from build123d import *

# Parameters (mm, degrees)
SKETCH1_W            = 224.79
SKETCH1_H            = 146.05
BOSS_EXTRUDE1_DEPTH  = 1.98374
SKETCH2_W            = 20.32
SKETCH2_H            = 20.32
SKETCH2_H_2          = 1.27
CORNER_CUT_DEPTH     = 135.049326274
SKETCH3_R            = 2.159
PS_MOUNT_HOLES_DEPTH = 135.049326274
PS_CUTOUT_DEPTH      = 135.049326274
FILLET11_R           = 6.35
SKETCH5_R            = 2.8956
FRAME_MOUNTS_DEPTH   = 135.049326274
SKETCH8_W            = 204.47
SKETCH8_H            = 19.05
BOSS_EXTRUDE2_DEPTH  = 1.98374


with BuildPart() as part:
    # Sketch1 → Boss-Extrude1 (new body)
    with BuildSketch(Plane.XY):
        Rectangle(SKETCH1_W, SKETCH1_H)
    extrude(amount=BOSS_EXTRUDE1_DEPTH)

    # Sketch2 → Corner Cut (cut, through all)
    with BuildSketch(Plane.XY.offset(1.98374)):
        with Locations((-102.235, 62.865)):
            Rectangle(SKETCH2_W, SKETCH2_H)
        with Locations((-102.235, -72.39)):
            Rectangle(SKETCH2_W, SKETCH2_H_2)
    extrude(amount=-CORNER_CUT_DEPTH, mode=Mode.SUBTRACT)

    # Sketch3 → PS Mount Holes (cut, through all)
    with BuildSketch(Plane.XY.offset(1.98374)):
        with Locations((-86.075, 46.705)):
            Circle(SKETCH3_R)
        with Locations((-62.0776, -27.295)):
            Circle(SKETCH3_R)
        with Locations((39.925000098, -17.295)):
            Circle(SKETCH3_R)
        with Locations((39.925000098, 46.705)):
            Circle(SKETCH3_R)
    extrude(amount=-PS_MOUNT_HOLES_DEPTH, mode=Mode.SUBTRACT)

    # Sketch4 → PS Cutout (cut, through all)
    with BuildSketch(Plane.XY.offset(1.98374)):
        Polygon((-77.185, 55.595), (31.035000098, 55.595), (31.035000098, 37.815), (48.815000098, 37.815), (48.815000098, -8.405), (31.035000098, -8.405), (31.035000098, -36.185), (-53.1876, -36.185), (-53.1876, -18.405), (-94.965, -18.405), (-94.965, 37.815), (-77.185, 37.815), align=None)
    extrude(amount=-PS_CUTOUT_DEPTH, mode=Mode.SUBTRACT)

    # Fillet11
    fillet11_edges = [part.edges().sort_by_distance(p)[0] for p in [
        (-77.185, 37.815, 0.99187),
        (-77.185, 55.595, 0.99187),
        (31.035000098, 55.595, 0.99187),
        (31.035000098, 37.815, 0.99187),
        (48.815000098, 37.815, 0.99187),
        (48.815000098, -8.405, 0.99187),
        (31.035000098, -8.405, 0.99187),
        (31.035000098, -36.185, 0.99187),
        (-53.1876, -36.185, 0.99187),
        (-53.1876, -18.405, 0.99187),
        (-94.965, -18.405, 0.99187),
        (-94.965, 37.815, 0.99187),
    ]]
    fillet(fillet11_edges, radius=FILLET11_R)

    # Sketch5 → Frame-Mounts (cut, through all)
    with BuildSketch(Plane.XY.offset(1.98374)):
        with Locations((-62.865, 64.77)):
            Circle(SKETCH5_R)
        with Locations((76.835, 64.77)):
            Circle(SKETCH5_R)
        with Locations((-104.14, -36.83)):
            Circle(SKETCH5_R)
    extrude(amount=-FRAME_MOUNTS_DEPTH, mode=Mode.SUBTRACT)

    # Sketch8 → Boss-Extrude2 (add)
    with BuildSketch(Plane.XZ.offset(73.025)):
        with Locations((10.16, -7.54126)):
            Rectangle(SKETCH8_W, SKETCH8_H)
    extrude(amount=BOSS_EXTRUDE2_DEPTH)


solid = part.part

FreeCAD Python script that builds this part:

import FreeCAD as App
import Part
import Sketcher

V = App.Vector
Q = App.Units.Quantity


def edges_at(feature, points):
    """Names of the edges that pass closest to the given points."""
    edges = feature.Shape.Edges
    near = lambda p: min(range(len(edges)), key=lambda i: edges[i].distToShape(Part.Vertex(*p))[0])
    return sorted({f"Edge{near(p) + 1}" for p in points})

doc = App.newDocument("Part")
params = doc.addObject("Spreadsheet::Sheet", "Params")
for row, (alias, value) in enumerate([
    ("sketch1_width", "8.85 in"),
    ("sketch1_height", "5.75 in"),
    ("pad1_length", "0.0781 in"),
    ("sketch2_width", "0.8 in"),
    ("sketch2_height", "0.05 in"),
    ("sketch3_diameter", "0.17 in"),
    ("sketch4_width", "0.7 in"),
    ("fillet_radius", "0.25 in"),
    ("sketch5_diameter", "0.228 in"),
    ("sketch6_width", "8.05 in"),
    ("sketch6_height", "0.75 in"),
    ("pad2_length", "0.0781 in"),
], start=1):
    params.set(f"A{row}", alias)
    params.set(f"B{row}", "=" + value)
    params.setAlias(f"B{row}", alias)

body = doc.addObject("PartDesign::Body", "Body")

sketch1 = body.newObject("Sketcher::SketchObject", "Sketch")
sketch1.AttachmentSupport = (doc.getObject("XY_Plane"), [""])
sketch1.MapMode = "FlatFace"
sketch1.addGeometry([
    Part.LineSegment(V(-112, 73, 0), V(-112, -73, 0)),
    Part.LineSegment(V(-112, -73, 0), V(112, -73, 0)),
    Part.LineSegment(V(112, -73, 0), V(112, 73, 0)),
    Part.LineSegment(V(112, 73, 0), V(-112, 73, 0)),
], False)
sketch1.addConstraint([
    Sketcher.Constraint("Coincident", 0, 2, 1, 1),
    Sketcher.Constraint("Coincident", 1, 2, 2, 1),
    Sketcher.Constraint("Coincident", 2, 2, 3, 1),
    Sketcher.Constraint("Coincident", 3, 2, 0, 1),
    Sketcher.Constraint("Vertical", 0),
    Sketcher.Constraint("Horizontal", 1),
    Sketcher.Constraint("Vertical", 2),
    Sketcher.Constraint("Horizontal", 3),
    Sketcher.Constraint("Symmetric", 0, 2, 2, 2, -1, 1),
    Sketcher.Constraint("DistanceX", 1, 1, 1, 2, Q("8.85 in")),
    Sketcher.Constraint("DistanceY", 0, 2, 0, 1, Q("5.75 in")),
])
sketch1.setExpression("Constraints[9]", "Params.sketch1_width")
sketch1.setExpression("Constraints[10]", "Params.sketch1_height")
pad1 = body.newObject("PartDesign::Pad", "Pad")
pad1.Profile = sketch1
pad1.setExpression("Length", "Params.pad1_length")

sketch2 = body.newObject("Sketcher::SketchObject", "Sketch001")
sketch2.AttachmentSupport = (doc.getObject("XY_Plane"), [""])
sketch2.MapMode = "FlatFace"
sketch2.AttachmentOffset = App.Placement(V(0, 0, 0.0781 * 25.4), App.Rotation())
sketch2.addGeometry([
    Part.LineSegment(V(-112.4, 73, 0), V(-112.4, 52.7, 0)),
    Part.LineSegment(V(-112.4, 52.7, 0), V(-92.1, 52.7, 0)),
    Part.LineSegment(V(-92.1, 52.7, 0), V(-92.1, 73, 0)),
    Part.LineSegment(V(-92.1, 73, 0), V(-112.4, 73, 0)),
    Part.LineSegment(V(-112.4, -71.8, 0), V(-112.4, -73, 0)),
    Part.LineSegment(V(-112.4, -73, 0), V(-92.1, -73, 0)),
    Part.LineSegment(V(-92.1, -73, 0), V(-92.1, -71.8, 0)),
    Part.LineSegment(V(-92.1, -71.8, 0), V(-112.4, -71.8, 0)),
], False)
sketch2.addConstraint([
    Sketcher.Constraint("Coincident", 0, 2, 1, 1),
    Sketcher.Constraint("Coincident", 1, 2, 2, 1),
    Sketcher.Constraint("Coincident", 2, 2, 3, 1),
    Sketcher.Constraint("Coincident", 3, 2, 0, 1),
    Sketcher.Constraint("Coincident", 4, 2, 5, 1),
    Sketcher.Constraint("Coincident", 5, 2, 6, 1),
    Sketcher.Constraint("Coincident", 6, 2, 7, 1),
    Sketcher.Constraint("Coincident", 7, 2, 4, 1),
    Sketcher.Constraint("Vertical", 0),
    Sketcher.Constraint("Horizontal", 1),
    Sketcher.Constraint("Vertical", 2),
    Sketcher.Constraint("Horizontal", 3),
    Sketcher.Constraint("Vertical", 4),
    Sketcher.Constraint("Horizontal", 5),
    Sketcher.Constraint("Vertical", 6),
    Sketcher.Constraint("Horizontal", 7),
    Sketcher.Constraint("Symmetric", 3, 2, 4, 2, -1),
    Sketcher.Constraint("Vertical", 2, 2, 5, 2),
    Sketcher.Constraint("Equal", 7, 0),
    Sketcher.Constraint("DistanceX", 1, 1, 1, 2, Q("0.8 in")),
    Sketcher.Constraint("DistanceY", 4, 2, 4, 1, Q("0.05 in")),
    Sketcher.Constraint("DistanceY", 6, 2, 1, 2, Q("4.9 in")),
    Sketcher.Constraint("DistanceX", 0, 2, -1, 1, Q("4.425 in")),
])
sketch2.setExpression("Constraints[19]", "Params.sketch2_width")
sketch2.setExpression("Constraints[20]", "Params.sketch2_height")
pocket1 = body.newObject("PartDesign::Pocket", "Pocket")
pocket1.Profile = sketch2
pocket1.Type = "ThroughAll"

sketch3 = body.newObject("Sketcher::SketchObject", "Sketch002")
sketch3.AttachmentSupport = (doc.getObject("XY_Plane"), [""])
sketch3.MapMode = "FlatFace"
sketch3.AttachmentOffset = App.Placement(V(0, 0, 0.0781 * 25.4), App.Rotation())
sketch3.addGeometry([
    Part.Circle(V(-86.1, 46.7, 0), V(0, 0, 1), 2.2),
    Part.Circle(V(-62.1, -27.3, 0), V(0, 0, 1), 2.2),
    Part.Circle(V(39.9, -17.3, 0), V(0, 0, 1), 2.2),
    Part.Circle(V(39.9, 46.7, 0), V(0, 0, 1), 2.2),
], False)
sketch3.addConstraint([
    Sketcher.Constraint("Equal", 0, 1),
    Sketcher.Constraint("Equal", 1, 2),
    Sketcher.Constraint("Equal", 2, 3),
    Sketcher.Constraint("Horizontal", 0, 3, 3, 3),
    Sketcher.Constraint("Vertical", 2, 3, 3, 3),
    Sketcher.Constraint("Diameter", 0, Q("0.17 in")),
    Sketcher.Constraint("DistanceX", 1, 3, -1, 1, Q("2.444 in")),
    Sketcher.Constraint("DistanceX", 0, 3, -1, 1, Q("86.075 mm")),
    Sketcher.Constraint("DistanceY", -1, 1, 0, 3, Q("46.705 mm")),
    Sketcher.Constraint("DistanceY", 1, 3, -1, 1, Q("27.295 mm")),
    Sketcher.Constraint("DistanceX", -1, 1, 2, 3, Q("39.925 mm")),
    Sketcher.Constraint("DistanceY", 2, 3, -1, 1, Q("17.295 mm")),
])
sketch3.setExpression("Constraints[5]", "Params.sketch3_diameter")
pocket2 = body.newObject("PartDesign::Pocket", "Pocket001")
pocket2.Profile = sketch3
pocket2.Type = "ThroughAll"

sketch4 = body.newObject("Sketcher::SketchObject", "Sketch003")
sketch4.AttachmentSupport = (doc.getObject("XY_Plane"), [""])
sketch4.MapMode = "FlatFace"
sketch4.AttachmentOffset = App.Placement(V(0, 0, 0.0781 * 25.4), App.Rotation())
sketch4.addGeometry([
    Part.LineSegment(V(31, 56, 0), V(-77, 56, 0)),
    Part.LineSegment(V(-77, 56, 0), V(-77, 38, 0)),
    Part.LineSegment(V(-77, 38, 0), V(-95, 38, 0)),
    Part.LineSegment(V(-95, 38, 0), V(-95, -18, 0)),
    Part.LineSegment(V(-95, -18, 0), V(-53, -18, 0)),
    Part.LineSegment(V(-53, -18, 0), V(-53, -36, 0)),
    Part.LineSegment(V(-53, -36, 0), V(31, -36, 0)),
    Part.LineSegment(V(31, -36, 0), V(31, -8, 0)),
    Part.LineSegment(V(31, -8, 0), V(49, -8, 0)),
    Part.LineSegment(V(49, -8, 0), V(49, 38, 0)),
    Part.LineSegment(V(49, 38, 0), V(31, 38, 0)),
    Part.LineSegment(V(31, 38, 0), V(31, 56, 0)),
], False)
sketch4.addConstraint([
    Sketcher.Constraint("Coincident", 0, 2, 1, 1),
    Sketcher.Constraint("Coincident", 1, 2, 2, 1),
    Sketcher.Constraint("Coincident", 2, 2, 3, 1),
    Sketcher.Constraint("Coincident", 3, 2, 4, 1),
    Sketcher.Constraint("Coincident", 4, 2, 5, 1),
    Sketcher.Constraint("Coincident", 5, 2, 6, 1),
    Sketcher.Constraint("Coincident", 6, 2, 7, 1),
    Sketcher.Constraint("Coincident", 7, 2, 8, 1),
    Sketcher.Constraint("Coincident", 8, 2, 9, 1),
    Sketcher.Constraint("Coincident", 9, 2, 10, 1),
    Sketcher.Constraint("Coincident", 10, 2, 11, 1),
    Sketcher.Constraint("Coincident", 11, 2, 0, 1),
    Sketcher.Constraint("Horizontal", 0),
    Sketcher.Constraint("Vertical", 1),
    Sketcher.Constraint("Horizontal", 2),
    Sketcher.Constraint("Vertical", 3),
    Sketcher.Constraint("Horizontal", 4),
    Sketcher.Constraint("Vertical", 5),
    Sketcher.Constraint("Horizontal", 6),
    Sketcher.Constraint("Vertical", 7),
    Sketcher.Constraint("Horizontal", 8),
    Sketcher.Constraint("Vertical", 9),
    Sketcher.Constraint("Horizontal", 10),
    Sketcher.Constraint("Vertical", 11),
    Sketcher.Constraint("Horizontal", 2, 2, 9, 2),
    Sketcher.Constraint("Vertical", 7, 2, 10, 2),
    Sketcher.Constraint("Equal", 2, 8),
    Sketcher.Constraint("Equal", 10, 1),
    Sketcher.Constraint("Equal", 1, 5),
    Sketcher.Constraint("DistanceX", 2, 2, 2, 1, Q("0.7 in")),
    Sketcher.Constraint("DistanceX", 4, 2, -1, 1, Q("2.094 in")),
    Sketcher.Constraint("DistanceX", 0, 2, 0, 1, Q("108.22 mm")),
    Sketcher.Constraint("DistanceX", 4, 1, 4, 2, Q("41.7774 mm")),
    Sketcher.Constraint("DistanceY", 3, 2, 3, 1, Q("56.22 mm")),
    Sketcher.Constraint("DistanceY", 7, 1, 7, 2, Q("27.78 mm")),
    Sketcher.Constraint("DistanceY", -1, 1, 0, 2, Q("55.595 mm")),
])
sketch4.setExpression("Constraints[29]", "Params.sketch4_width")
pocket3 = body.newObject("PartDesign::Pocket", "Pocket002")
pocket3.Profile = sketch4
pocket3.Type = "ThroughAll"
doc.recompute()

fillet = body.newObject("PartDesign::Fillet", "Fillet")
fillet.Base = (pocket3, edges_at(pocket3, [
    (-77.185, 37.815, 0.992),
    (-77.185, 55.595, 0.992),
    (31.035, 55.595, 0.992),
    (31.035, 37.815, 0.992),
    (48.815, 37.815, 0.992),
    (48.815, -8.405, 0.992),
    (31.035, -8.405, 0.992),
    (31.035, -36.185, 0.992),
    (-53.188, -36.185, 0.992),
    (-53.188, -18.405, 0.992),
    (-94.965, -18.405, 0.992),
    (-94.965, 37.815, 0.992),
]))
fillet.setExpression("Radius", "Params.fillet_radius")

sketch5 = body.newObject("Sketcher::SketchObject", "Sketch004")
sketch5.AttachmentSupport = (doc.getObject("XY_Plane"), [""])
sketch5.MapMode = "FlatFace"
sketch5.AttachmentOffset = App.Placement(V(0, 0, 0.0781 * 25.4), App.Rotation())
sketch5.addGeometry([
    Part.Circle(V(-62.9, 64.8, 0), V(0, 0, 1), 2.9),
    Part.Circle(V(76.8, 64.8, 0), V(0, 0, 1), 2.9),
    Part.Circle(V(-104.1, -36.8, 0), V(0, 0, 1), 2.9),
], False)
sketch5.addConstraint([
    Sketcher.Constraint("Equal", 0, 1),
    Sketcher.Constraint("Equal", 1, 2),
    Sketcher.Constraint("Horizontal", 0, 3, 1, 3),
    Sketcher.Constraint("Diameter", 0, Q("0.228 in")),
    Sketcher.Constraint("DistanceY", 2, 3, 0, 3, Q("4 in")),
    Sketcher.Constraint("DistanceX", 2, 3, -1, 1, Q("4.1 in")),
    Sketcher.Constraint("DistanceX", 0, 3, 1, 3, Q("5.5 in")),
    Sketcher.Constraint("DistanceY", -1, 1, 0, 3, Q("2.55 in")),
    Sketcher.Constraint("DistanceX", 0, 3, -1, 1, Q("2.475 in")),
])
sketch5.setExpression("Constraints[3]", "Params.sketch5_diameter")
pocket4 = body.newObject("PartDesign::Pocket", "Pocket003")
pocket4.Profile = sketch5
pocket4.Type = "ThroughAll"

sketch6 = body.newObject("Sketcher::SketchObject", "Sketch005")
sketch6.AttachmentSupport = (doc.getObject("XZ_Plane"), [""])
sketch6.MapMode = "FlatFace"
sketch6.AttachmentOffset = App.Placement(V(0, 0, 2.875 * 25.4), App.Rotation())
sketch6.addGeometry([
    Part.LineSegment(V(-92, 2, 0), V(-92, -17, 0)),
    Part.LineSegment(V(-92, -17, 0), V(112, -17, 0)),
    Part.LineSegment(V(112, -17, 0), V(112, 2, 0)),
    Part.LineSegment(V(112, 2, 0), V(-92, 2, 0)),
], False)
sketch6.addConstraint([
    Sketcher.Constraint("Coincident", 0, 2, 1, 1),
    Sketcher.Constraint("Coincident", 1, 2, 2, 1),
    Sketcher.Constraint("Coincident", 2, 2, 3, 1),
    Sketcher.Constraint("Coincident", 3, 2, 0, 1),
    Sketcher.Constraint("Vertical", 0),
    Sketcher.Constraint("Horizontal", 1),
    Sketcher.Constraint("Vertical", 2),
    Sketcher.Constraint("Horizontal", 3),
    Sketcher.Constraint("DistanceX", 1, 1, 1, 2, Q("8.05 in")),
    Sketcher.Constraint("DistanceY", 0, 2, 0, 1, Q("0.75 in")),
    Sketcher.Constraint("DistanceX", 0, 2, -1, 1, Q("3.625 in")),
    Sketcher.Constraint("DistanceY", 0, 2, -1, 1, Q("0.6719 in")),
])
sketch6.setExpression("Constraints[8]", "Params.sketch6_width")
sketch6.setExpression("Constraints[9]", "Params.sketch6_height")
pad2 = body.newObject("PartDesign::Pad", "Pad001")
pad2.Profile = sketch6
pad2.setExpression("Length", "Params.pad2_length")

doc.recompute()
